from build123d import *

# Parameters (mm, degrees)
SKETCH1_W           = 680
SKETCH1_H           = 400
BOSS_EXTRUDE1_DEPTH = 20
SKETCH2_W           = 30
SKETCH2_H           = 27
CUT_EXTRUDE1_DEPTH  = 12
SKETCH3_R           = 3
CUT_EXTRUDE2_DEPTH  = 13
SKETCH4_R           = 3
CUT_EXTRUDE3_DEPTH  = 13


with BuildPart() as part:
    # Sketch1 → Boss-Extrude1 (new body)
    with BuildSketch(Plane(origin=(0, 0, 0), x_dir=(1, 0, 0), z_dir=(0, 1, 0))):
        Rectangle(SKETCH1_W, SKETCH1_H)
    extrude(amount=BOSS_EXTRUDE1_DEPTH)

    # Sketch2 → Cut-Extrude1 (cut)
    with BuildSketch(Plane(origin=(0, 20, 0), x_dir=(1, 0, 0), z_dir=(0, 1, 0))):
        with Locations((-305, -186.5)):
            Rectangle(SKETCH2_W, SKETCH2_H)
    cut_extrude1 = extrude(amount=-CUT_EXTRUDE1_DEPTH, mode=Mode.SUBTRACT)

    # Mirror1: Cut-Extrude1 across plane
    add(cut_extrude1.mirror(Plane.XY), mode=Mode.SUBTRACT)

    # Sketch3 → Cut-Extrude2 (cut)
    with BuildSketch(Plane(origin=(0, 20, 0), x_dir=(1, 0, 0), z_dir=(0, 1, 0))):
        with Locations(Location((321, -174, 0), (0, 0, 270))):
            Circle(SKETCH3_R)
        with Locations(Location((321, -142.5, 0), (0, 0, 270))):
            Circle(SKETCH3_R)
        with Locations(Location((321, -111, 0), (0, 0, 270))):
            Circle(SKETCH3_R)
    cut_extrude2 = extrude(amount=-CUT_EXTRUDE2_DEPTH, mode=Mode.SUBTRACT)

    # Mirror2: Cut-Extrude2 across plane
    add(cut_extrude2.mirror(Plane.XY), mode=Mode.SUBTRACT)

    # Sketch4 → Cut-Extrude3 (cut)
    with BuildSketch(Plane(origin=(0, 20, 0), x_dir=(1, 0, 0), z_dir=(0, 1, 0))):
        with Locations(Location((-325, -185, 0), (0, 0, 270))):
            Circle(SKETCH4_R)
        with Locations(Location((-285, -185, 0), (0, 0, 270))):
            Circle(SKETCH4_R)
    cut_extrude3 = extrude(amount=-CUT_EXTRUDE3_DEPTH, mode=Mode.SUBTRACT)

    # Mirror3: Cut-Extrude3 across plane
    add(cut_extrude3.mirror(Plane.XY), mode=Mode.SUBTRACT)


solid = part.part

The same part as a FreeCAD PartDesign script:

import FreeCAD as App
import Part
import Sketcher
Q = App.Units.Quantity

doc = App.newDocument("Part")
body = doc.addObject("PartDesign::Body", "Body")

# Sketch on XZ plane
sketch1 = body.newObject("Sketcher::SketchObject", "Sketch")
sketch1.AttachmentSupport = (doc.getObject("XZ_Plane"), [""])
sketch1.MapMode = "FlatFace"
sketch1.addGeometry([
    Part.LineSegment(App.Vector(-340, -200, 0), App.Vector(-340, 200, 0)),
    Part.LineSegment(App.Vector(-340, 200, 0), App.Vector(340, 200, 0)),
    Part.LineSegment(App.Vector(340, 200, 0), App.Vector(340, -200, 0)),
    Part.LineSegment(App.Vector(340, -200, 0), App.Vector(-340, -200, 0)),
], False)
sketch1.addConstraint([
    Sketcher.Constraint("Coincident", 0, 2, 1, 1),
    Sketcher.Constraint("Coincident", 1, 2, 2, 1),
    Sketcher.Constraint("Coincident", 2, 2, 3, 1),
    Sketcher.Constraint("Coincident", 3, 2, 0, 1),
    Sketcher.Constraint("Vertical", 0),
    Sketcher.Constraint("Horizontal", 1),
    Sketcher.Constraint("Vertical", 2),
    Sketcher.Constraint("Horizontal", 3),
    Sketcher.Constraint("Symmetric", 0, 2, 2, 2, -1, 1),
    Sketcher.Constraint("DistanceX", 1, 1, 1, 2, Q("680 mm")),
    Sketcher.Constraint("DistanceY", 0, 1, 0, 2, Q("400 mm")),
])
pad1 = body.newObject("PartDesign::Pad", "Pad")
pad1.Profile = sketch1
pad1.Length = 20
pad1.Reversed = True

# Sketch on XZ plane
sketch2 = body.newObject("Sketcher::SketchObject", "Sketch001")
sketch2.AttachmentSupport = (doc.getObject("XZ_Plane"), [""])
sketch2.MapMode = "FlatFace"
sketch2.AttachmentOffset = App.Placement(App.Vector(0, 0, -20), App.Rotation())
sketch2.addGeometry([
    Part.LineSegment(App.Vector(-320, 173, 0), App.Vector(-320, 200, 0)),
    Part.LineSegment(App.Vector(-320, 200, 0), App.Vector(-290, 200, 0)),
    Part.LineSegment(App.Vector(-290, 200, 0), App.Vector(-290, 173, 0)),
    Part.LineSegment(App.Vector(-290, 173, 0), App.Vector(-320, 173, 0)),
], False)
sketch2.addConstraint([
    Sketcher.Constraint("Coincident", 0, 2, 1, 1),
    Sketcher.Constraint("Coincident", 1, 2, 2, 1),
    Sketcher.Constraint("Coincident", 2, 2, 3, 1),
    Sketcher.Constraint("Coincident", 3, 2, 0, 1),
    Sketcher.Constraint("Vertical", 0),
    Sketcher.Constraint("Horizontal", 1),
    Sketcher.Constraint("Vertical", 2),
    Sketcher.Constraint("Horizontal", 3),
    Sketcher.Constraint("DistanceX", 1, 1, 1, 2, Q("30 mm")),
    Sketcher.Constraint("DistanceY", 0, 1, 0, 2, Q("27 mm")),
    Sketcher.Constraint("DistanceX", 0, 2, -1, 1, Q("320 mm")),
    Sketcher.Constraint("DistanceY", -1, 1, 0, 2, Q("200 mm")),
])
pocket1 = body.newObject("PartDesign::Pocket", "Pocket")
pocket1.Profile = sketch2
pocket1.Length = 12
pocket1.Reversed = True
doc.recompute()

mirrored = body.newObject("PartDesign::Mirrored", "Mirrored")
mirrored.Originals = [pocket1]
mirrored.MirrorPlane = (doc.getObject("XY_Plane"), [""])
body.Tip = mirrored

# Sketch on XZ plane
sketch3 = body.newObject("Sketcher::SketchObject", "Sketch002")
sketch3.AttachmentSupport = (doc.getObject("XZ_Plane"), [""])
sketch3.MapMode = "FlatFace"
sketch3.AttachmentOffset = App.Placement(App.Vector(0, 0, -20), App.Rotation())
sketch3.addGeometry([
    Part.Circle(App.Vector(321, 174, 0), App.Vector(0, 0, 1), 3),
    Part.Circle(App.Vector(321, 142.5, 0), App.Vector(0, 0, 1), 3),
    Part.Circle(App.Vector(321, 111, 0), App.Vector(0, 0, 1), 3),
], False)
sketch3.addConstraint([
    Sketcher.Constraint("Equal", 0, 1),
    Sketcher.Constraint("Equal", 1, 2),
    Sketcher.Constraint("Vertical", 0, 3, 1, 3),
    Sketcher.Constraint("Vertical", 1, 3, 2, 3),
    Sketcher.Constraint("Diameter", 0, Q("6 mm")),
    Sketcher.Constraint("DistanceX", -1, 1, 0, 3, Q("321 mm")),
    Sketcher.Constraint("DistanceY", -1, 1, 0, 3, Q("174 mm")),
    Sketcher.Constraint("DistanceY", -1, 1, 2, 3, Q("111 mm")),
    Sketcher.Constraint("DistanceY", -1, 1, 1, 3, Q("142.5 mm")),
])
pocket2 = body.newObject("PartDesign::Pocket", "Pocket001")
pocket2.Profile = sketch3
pocket2.Length = 13
pocket2.Reversed = True
doc.recompute()

mirrored2 = body.newObject("PartDesign::Mirrored", "Mirrored001")
mirrored2.Originals = [pocket2]
mirrored2.MirrorPlane = (doc.getObject("XY_Plane"), [""])
body.Tip = mirrored2

# Sketch on XZ plane
sketch4 = body.newObject("Sketcher::SketchObject", "Sketch003")
sketch4.AttachmentSupport = (doc.getObject("XZ_Plane"), [""])
sketch4.MapMode = "FlatFace"
sketch4.AttachmentOffset = App.Placement(App.Vector(0, 0, -20), App.Rotation())
sketch4.addGeometry([
    Part.Circle(App.Vector(-325, 185, 0), App.Vector(0, 0, 1), 3),
    Part.Circle(App.Vector(-285, 185, 0), App.Vector(0, 0, 1), 3),
], False)
sketch4.addConstraint([
    Sketcher.Constraint("Equal", 0, 1),
    Sketcher.Constraint("Horizontal", 0, 3, 1, 3),
    Sketcher.Constraint("Diameter", 0, Q("6 mm")),
    Sketcher.Constraint("DistanceX", 0, 3, -1, 1, Q("325 mm")),
    Sketcher.Constraint("DistanceY", -1, 1, 0, 3, Q("185 mm")),
    Sketcher.Constraint("DistanceX", 1, 3, -1, 1, Q("285 mm")),
])
pocket3 = body.newObject("PartDesign::Pocket", "Pocket002")
pocket3.Profile = sketch4
pocket3.Length = 13
pocket3.Reversed = True
doc.recompute()

mirrored3 = body.newObject("PartDesign::Mirrored", "Mirrored002")
mirrored3.Originals = [pocket3]
mirrored3.MirrorPlane = (doc.getObject("XY_Plane"), [""])
body.Tip = mirrored3

doc.recompute()
